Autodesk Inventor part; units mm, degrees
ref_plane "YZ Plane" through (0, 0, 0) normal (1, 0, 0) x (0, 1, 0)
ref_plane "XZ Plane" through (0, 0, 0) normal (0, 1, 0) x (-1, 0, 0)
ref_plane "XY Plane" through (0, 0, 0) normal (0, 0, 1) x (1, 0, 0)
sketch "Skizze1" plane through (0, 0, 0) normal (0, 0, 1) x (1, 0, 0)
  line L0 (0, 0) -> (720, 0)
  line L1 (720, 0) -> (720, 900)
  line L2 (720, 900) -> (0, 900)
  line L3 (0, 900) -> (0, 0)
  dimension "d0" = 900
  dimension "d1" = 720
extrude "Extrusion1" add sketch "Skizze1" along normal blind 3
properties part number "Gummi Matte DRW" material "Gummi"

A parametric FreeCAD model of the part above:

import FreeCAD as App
import Part
import Sketcher
from FreeCAD import Vector
Q = App.Units.Quantity


def add_polygon(sketch, points):
    """Adds a closed chain of lines whose ends are joined by coincident constraints."""
    first, n = sketch.GeometryCount, len(points)
    for a, b in zip(points, points[1:] + points[:1]):
        sketch.addGeometry(Part.LineSegment(App.Vector(*a, 0), App.Vector(*b, 0)), False)
    for i in range(n):
        sketch.addConstraint(Sketcher.Constraint("Coincident", first + i, 2, first + (i + 1) % n, 1))

doc = App.newDocument("Part")
params = doc.addObject("Spreadsheet::Sheet", "Params")
for row, (alias, value) in enumerate([
    ("sketch1_width", "720 mm"),
    ("sketch1_height", "900 mm"),
    ("pad1_length", "3 mm"),
], start=1):
    params.set(f"A{row}", alias)
    params.set(f"B{row}", "=" + value)
    params.setAlias(f"B{row}", alias)

body = doc.addObject("PartDesign::Body", "Body")

# Sketch on XY plane
sketch1 = body.newObject("Sketcher::SketchObject", "Sketch")
sketch1.AttachmentSupport = (doc.getObject("XY_Plane"), [""])
sketch1.MapMode = "FlatFace"
add_polygon(sketch1, [(0, 900), (0, 0), (720, 0), (720, 900)])  # lines 0-3
sketch1.addConstraint([
    Sketcher.Constraint("Vertical", 0),
    Sketcher.Constraint("Horizontal", 1),
    Sketcher.Constraint("Vertical", 2),
    Sketcher.Constraint("Horizontal", 3),
    Sketcher.Constraint("Coincident", 0, 2, -1, 1),
    Sketcher.Constraint("DistanceX", 1, 1, 1, 2, Q("720 mm")),
    Sketcher.Constraint("DistanceY", 0, 2, 0, 1, Q("900 mm")),
])
sketch1.setExpression("Constraints[9]", "Params.sketch1_width")
sketch1.setExpression("Constraints[10]", "Params.sketch1_height")
pad1 = body.newObject("PartDesign::Pad", "Pad")
pad1.Profile = sketch1
pad1.setExpression("Length", "Params.pad1_length")

doc.recompute()
